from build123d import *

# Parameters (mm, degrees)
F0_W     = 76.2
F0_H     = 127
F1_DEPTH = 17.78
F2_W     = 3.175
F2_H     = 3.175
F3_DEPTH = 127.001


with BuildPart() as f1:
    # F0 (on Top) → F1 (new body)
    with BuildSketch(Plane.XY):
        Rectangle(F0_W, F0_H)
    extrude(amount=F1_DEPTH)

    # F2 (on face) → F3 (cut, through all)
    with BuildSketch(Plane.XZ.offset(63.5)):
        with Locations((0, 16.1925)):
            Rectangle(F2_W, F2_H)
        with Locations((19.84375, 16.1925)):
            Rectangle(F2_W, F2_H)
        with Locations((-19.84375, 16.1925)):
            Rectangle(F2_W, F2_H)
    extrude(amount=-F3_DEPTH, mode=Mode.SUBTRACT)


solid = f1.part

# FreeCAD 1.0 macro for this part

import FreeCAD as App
import Part
import Sketcher
Q = App.Units.Quantity


def add_polygon(sketch, points):
    """Adds a closed chain of lines whose ends are joined by coincident constraints."""
    first, n = sketch.GeometryCount, len(points)
    for a, b in zip(points, points[1:] + points[:1]):
        sketch.addGeometry(Part.LineSegment(App.Vector(*a, 0), App.Vector(*b, 0)), False)
    for i in range(n):
        sketch.addConstraint(Sketcher.Constraint("Coincident", first + i, 2, first + (i + 1) % n, 1))

doc = App.newDocument("Part")
body = doc.addObject("PartDesign::Body", "Body")

sketch1 = body.newObject("Sketcher::SketchObject", "Sketch")
sketch1.AttachmentSupport = (doc.getObject("XY_Plane"), [""])
sketch1.MapMode = "FlatFace"
add_polygon(sketch1, [(-38, 64), (-38, -64), (38, -64), (38, 64)])
sketch1.addConstraint(Sketcher.Constraint("Vertical", 0))
sketch1.addConstraint(Sketcher.Constraint("Horizontal", 1))
sketch1.addConstraint(Sketcher.Constraint("Vertical", 2))
sketch1.addConstraint(Sketcher.Constraint("Horizontal", 3))
sketch1.addConstraint(Sketcher.Constraint("Symmetric", 0, 2, 2, 2, -1, 1))
sketch1.addConstraint(Sketcher.Constraint("DistanceX", 1, 1, 1, 2, Q("3 in")))
sketch1.addConstraint(Sketcher.Constraint("DistanceY", 0, 2, 0, 1, Q("5 in")))
pad1 = body.newObject("PartDesign::Pad", "Pad")
pad1.Profile = sketch1
pad1.Length = Q("0.7 in")

sketch2 = body.newObject("Sketcher::SketchObject", "Sketch001")
sketch2.AttachmentSupport = (doc.getObject("XZ_Plane"), [""])
sketch2.MapMode = "FlatFace"
sketch2.AttachmentOffset = App.Placement(App.Vector(0, 0, 2.5 * 25.4), App.Rotation())
add_polygon(sketch2, [(-1.6, 17.8), (-1.6, 14.6), (1.6, 14.6), (1.6, 17.8)])
add_polygon(sketch2, [(18.3, 17.8), (18.3, 14.6), (21.4, 14.6), (21.4, 17.8)])
add_polygon(sketch2, [(-21.4, 17.8), (-21.4, 14.6), (-18.3, 14.6), (-18.3, 17.8)])
sketch2.addConstraint(Sketcher.Constraint("Vertical", 0))
sketch2.addConstraint(Sketcher.Constraint("Horizontal", 1))
sketch2.addConstraint(Sketcher.Constraint("Vertical", 2))
sketch2.addConstraint(Sketcher.Constraint("Horizontal", 3))
sketch2.addConstraint(Sketcher.Constraint("Vertical", 4))
sketch2.addConstraint(Sketcher.Constraint("Horizontal", 5))
sketch2.addConstraint(Sketcher.Constraint("Vertical", 6))
sketch2.addConstraint(Sketcher.Constraint("Horizontal", 7))
sketch2.addConstraint(Sketcher.Constraint("Vertical", 8))
sketch2.addConstraint(Sketcher.Constraint("Horizontal", 9))
sketch2.addConstraint(Sketcher.Constraint("Vertical", 10))
sketch2.addConstraint(Sketcher.Constraint("Horizontal", 11))
sketch2.addConstraint(Sketcher.Constraint("Symmetric", 5, 2, 8, 2, -2))
sketch2.addConstraint(Sketcher.Constraint("Symmetric", 7, 2, 10, 2, -2))
sketch2.addConstraint(Sketcher.Constraint("Horizontal", 1, 2, 4, 2))
sketch2.addConstraint(Sketcher.Constraint("Horizontal", 3, 2, 6, 2))
sketch2.addConstraint(Sketcher.Constraint("Equal", 3, 5))
sketch2.addConstraint(Sketcher.Constraint("Equal", 11, 0))
sketch2.addConstraint(Sketcher.Constraint("DistanceY", -1, 1, 2, 2, Q("0.7 in")))
sketch2.addConstraint(Sketcher.Constraint("DistanceX", 1, 1, 1, 2, Q("0.125 in")))
sketch2.addConstraint(Sketcher.Constraint("DistanceX", 0, 2, -1, 1, Q("0.0625 in")))
sketch2.addConstraint(Sketcher.Constraint("DistanceX", -1, 1, 4, 2, Q("0.71875 in")))
pocket1 = body.newObject("PartDesign::Pocket", "Pocket")
pocket1.Profile = sketch2
pocket1.Type = "ThroughAll"

doc.recompute()
